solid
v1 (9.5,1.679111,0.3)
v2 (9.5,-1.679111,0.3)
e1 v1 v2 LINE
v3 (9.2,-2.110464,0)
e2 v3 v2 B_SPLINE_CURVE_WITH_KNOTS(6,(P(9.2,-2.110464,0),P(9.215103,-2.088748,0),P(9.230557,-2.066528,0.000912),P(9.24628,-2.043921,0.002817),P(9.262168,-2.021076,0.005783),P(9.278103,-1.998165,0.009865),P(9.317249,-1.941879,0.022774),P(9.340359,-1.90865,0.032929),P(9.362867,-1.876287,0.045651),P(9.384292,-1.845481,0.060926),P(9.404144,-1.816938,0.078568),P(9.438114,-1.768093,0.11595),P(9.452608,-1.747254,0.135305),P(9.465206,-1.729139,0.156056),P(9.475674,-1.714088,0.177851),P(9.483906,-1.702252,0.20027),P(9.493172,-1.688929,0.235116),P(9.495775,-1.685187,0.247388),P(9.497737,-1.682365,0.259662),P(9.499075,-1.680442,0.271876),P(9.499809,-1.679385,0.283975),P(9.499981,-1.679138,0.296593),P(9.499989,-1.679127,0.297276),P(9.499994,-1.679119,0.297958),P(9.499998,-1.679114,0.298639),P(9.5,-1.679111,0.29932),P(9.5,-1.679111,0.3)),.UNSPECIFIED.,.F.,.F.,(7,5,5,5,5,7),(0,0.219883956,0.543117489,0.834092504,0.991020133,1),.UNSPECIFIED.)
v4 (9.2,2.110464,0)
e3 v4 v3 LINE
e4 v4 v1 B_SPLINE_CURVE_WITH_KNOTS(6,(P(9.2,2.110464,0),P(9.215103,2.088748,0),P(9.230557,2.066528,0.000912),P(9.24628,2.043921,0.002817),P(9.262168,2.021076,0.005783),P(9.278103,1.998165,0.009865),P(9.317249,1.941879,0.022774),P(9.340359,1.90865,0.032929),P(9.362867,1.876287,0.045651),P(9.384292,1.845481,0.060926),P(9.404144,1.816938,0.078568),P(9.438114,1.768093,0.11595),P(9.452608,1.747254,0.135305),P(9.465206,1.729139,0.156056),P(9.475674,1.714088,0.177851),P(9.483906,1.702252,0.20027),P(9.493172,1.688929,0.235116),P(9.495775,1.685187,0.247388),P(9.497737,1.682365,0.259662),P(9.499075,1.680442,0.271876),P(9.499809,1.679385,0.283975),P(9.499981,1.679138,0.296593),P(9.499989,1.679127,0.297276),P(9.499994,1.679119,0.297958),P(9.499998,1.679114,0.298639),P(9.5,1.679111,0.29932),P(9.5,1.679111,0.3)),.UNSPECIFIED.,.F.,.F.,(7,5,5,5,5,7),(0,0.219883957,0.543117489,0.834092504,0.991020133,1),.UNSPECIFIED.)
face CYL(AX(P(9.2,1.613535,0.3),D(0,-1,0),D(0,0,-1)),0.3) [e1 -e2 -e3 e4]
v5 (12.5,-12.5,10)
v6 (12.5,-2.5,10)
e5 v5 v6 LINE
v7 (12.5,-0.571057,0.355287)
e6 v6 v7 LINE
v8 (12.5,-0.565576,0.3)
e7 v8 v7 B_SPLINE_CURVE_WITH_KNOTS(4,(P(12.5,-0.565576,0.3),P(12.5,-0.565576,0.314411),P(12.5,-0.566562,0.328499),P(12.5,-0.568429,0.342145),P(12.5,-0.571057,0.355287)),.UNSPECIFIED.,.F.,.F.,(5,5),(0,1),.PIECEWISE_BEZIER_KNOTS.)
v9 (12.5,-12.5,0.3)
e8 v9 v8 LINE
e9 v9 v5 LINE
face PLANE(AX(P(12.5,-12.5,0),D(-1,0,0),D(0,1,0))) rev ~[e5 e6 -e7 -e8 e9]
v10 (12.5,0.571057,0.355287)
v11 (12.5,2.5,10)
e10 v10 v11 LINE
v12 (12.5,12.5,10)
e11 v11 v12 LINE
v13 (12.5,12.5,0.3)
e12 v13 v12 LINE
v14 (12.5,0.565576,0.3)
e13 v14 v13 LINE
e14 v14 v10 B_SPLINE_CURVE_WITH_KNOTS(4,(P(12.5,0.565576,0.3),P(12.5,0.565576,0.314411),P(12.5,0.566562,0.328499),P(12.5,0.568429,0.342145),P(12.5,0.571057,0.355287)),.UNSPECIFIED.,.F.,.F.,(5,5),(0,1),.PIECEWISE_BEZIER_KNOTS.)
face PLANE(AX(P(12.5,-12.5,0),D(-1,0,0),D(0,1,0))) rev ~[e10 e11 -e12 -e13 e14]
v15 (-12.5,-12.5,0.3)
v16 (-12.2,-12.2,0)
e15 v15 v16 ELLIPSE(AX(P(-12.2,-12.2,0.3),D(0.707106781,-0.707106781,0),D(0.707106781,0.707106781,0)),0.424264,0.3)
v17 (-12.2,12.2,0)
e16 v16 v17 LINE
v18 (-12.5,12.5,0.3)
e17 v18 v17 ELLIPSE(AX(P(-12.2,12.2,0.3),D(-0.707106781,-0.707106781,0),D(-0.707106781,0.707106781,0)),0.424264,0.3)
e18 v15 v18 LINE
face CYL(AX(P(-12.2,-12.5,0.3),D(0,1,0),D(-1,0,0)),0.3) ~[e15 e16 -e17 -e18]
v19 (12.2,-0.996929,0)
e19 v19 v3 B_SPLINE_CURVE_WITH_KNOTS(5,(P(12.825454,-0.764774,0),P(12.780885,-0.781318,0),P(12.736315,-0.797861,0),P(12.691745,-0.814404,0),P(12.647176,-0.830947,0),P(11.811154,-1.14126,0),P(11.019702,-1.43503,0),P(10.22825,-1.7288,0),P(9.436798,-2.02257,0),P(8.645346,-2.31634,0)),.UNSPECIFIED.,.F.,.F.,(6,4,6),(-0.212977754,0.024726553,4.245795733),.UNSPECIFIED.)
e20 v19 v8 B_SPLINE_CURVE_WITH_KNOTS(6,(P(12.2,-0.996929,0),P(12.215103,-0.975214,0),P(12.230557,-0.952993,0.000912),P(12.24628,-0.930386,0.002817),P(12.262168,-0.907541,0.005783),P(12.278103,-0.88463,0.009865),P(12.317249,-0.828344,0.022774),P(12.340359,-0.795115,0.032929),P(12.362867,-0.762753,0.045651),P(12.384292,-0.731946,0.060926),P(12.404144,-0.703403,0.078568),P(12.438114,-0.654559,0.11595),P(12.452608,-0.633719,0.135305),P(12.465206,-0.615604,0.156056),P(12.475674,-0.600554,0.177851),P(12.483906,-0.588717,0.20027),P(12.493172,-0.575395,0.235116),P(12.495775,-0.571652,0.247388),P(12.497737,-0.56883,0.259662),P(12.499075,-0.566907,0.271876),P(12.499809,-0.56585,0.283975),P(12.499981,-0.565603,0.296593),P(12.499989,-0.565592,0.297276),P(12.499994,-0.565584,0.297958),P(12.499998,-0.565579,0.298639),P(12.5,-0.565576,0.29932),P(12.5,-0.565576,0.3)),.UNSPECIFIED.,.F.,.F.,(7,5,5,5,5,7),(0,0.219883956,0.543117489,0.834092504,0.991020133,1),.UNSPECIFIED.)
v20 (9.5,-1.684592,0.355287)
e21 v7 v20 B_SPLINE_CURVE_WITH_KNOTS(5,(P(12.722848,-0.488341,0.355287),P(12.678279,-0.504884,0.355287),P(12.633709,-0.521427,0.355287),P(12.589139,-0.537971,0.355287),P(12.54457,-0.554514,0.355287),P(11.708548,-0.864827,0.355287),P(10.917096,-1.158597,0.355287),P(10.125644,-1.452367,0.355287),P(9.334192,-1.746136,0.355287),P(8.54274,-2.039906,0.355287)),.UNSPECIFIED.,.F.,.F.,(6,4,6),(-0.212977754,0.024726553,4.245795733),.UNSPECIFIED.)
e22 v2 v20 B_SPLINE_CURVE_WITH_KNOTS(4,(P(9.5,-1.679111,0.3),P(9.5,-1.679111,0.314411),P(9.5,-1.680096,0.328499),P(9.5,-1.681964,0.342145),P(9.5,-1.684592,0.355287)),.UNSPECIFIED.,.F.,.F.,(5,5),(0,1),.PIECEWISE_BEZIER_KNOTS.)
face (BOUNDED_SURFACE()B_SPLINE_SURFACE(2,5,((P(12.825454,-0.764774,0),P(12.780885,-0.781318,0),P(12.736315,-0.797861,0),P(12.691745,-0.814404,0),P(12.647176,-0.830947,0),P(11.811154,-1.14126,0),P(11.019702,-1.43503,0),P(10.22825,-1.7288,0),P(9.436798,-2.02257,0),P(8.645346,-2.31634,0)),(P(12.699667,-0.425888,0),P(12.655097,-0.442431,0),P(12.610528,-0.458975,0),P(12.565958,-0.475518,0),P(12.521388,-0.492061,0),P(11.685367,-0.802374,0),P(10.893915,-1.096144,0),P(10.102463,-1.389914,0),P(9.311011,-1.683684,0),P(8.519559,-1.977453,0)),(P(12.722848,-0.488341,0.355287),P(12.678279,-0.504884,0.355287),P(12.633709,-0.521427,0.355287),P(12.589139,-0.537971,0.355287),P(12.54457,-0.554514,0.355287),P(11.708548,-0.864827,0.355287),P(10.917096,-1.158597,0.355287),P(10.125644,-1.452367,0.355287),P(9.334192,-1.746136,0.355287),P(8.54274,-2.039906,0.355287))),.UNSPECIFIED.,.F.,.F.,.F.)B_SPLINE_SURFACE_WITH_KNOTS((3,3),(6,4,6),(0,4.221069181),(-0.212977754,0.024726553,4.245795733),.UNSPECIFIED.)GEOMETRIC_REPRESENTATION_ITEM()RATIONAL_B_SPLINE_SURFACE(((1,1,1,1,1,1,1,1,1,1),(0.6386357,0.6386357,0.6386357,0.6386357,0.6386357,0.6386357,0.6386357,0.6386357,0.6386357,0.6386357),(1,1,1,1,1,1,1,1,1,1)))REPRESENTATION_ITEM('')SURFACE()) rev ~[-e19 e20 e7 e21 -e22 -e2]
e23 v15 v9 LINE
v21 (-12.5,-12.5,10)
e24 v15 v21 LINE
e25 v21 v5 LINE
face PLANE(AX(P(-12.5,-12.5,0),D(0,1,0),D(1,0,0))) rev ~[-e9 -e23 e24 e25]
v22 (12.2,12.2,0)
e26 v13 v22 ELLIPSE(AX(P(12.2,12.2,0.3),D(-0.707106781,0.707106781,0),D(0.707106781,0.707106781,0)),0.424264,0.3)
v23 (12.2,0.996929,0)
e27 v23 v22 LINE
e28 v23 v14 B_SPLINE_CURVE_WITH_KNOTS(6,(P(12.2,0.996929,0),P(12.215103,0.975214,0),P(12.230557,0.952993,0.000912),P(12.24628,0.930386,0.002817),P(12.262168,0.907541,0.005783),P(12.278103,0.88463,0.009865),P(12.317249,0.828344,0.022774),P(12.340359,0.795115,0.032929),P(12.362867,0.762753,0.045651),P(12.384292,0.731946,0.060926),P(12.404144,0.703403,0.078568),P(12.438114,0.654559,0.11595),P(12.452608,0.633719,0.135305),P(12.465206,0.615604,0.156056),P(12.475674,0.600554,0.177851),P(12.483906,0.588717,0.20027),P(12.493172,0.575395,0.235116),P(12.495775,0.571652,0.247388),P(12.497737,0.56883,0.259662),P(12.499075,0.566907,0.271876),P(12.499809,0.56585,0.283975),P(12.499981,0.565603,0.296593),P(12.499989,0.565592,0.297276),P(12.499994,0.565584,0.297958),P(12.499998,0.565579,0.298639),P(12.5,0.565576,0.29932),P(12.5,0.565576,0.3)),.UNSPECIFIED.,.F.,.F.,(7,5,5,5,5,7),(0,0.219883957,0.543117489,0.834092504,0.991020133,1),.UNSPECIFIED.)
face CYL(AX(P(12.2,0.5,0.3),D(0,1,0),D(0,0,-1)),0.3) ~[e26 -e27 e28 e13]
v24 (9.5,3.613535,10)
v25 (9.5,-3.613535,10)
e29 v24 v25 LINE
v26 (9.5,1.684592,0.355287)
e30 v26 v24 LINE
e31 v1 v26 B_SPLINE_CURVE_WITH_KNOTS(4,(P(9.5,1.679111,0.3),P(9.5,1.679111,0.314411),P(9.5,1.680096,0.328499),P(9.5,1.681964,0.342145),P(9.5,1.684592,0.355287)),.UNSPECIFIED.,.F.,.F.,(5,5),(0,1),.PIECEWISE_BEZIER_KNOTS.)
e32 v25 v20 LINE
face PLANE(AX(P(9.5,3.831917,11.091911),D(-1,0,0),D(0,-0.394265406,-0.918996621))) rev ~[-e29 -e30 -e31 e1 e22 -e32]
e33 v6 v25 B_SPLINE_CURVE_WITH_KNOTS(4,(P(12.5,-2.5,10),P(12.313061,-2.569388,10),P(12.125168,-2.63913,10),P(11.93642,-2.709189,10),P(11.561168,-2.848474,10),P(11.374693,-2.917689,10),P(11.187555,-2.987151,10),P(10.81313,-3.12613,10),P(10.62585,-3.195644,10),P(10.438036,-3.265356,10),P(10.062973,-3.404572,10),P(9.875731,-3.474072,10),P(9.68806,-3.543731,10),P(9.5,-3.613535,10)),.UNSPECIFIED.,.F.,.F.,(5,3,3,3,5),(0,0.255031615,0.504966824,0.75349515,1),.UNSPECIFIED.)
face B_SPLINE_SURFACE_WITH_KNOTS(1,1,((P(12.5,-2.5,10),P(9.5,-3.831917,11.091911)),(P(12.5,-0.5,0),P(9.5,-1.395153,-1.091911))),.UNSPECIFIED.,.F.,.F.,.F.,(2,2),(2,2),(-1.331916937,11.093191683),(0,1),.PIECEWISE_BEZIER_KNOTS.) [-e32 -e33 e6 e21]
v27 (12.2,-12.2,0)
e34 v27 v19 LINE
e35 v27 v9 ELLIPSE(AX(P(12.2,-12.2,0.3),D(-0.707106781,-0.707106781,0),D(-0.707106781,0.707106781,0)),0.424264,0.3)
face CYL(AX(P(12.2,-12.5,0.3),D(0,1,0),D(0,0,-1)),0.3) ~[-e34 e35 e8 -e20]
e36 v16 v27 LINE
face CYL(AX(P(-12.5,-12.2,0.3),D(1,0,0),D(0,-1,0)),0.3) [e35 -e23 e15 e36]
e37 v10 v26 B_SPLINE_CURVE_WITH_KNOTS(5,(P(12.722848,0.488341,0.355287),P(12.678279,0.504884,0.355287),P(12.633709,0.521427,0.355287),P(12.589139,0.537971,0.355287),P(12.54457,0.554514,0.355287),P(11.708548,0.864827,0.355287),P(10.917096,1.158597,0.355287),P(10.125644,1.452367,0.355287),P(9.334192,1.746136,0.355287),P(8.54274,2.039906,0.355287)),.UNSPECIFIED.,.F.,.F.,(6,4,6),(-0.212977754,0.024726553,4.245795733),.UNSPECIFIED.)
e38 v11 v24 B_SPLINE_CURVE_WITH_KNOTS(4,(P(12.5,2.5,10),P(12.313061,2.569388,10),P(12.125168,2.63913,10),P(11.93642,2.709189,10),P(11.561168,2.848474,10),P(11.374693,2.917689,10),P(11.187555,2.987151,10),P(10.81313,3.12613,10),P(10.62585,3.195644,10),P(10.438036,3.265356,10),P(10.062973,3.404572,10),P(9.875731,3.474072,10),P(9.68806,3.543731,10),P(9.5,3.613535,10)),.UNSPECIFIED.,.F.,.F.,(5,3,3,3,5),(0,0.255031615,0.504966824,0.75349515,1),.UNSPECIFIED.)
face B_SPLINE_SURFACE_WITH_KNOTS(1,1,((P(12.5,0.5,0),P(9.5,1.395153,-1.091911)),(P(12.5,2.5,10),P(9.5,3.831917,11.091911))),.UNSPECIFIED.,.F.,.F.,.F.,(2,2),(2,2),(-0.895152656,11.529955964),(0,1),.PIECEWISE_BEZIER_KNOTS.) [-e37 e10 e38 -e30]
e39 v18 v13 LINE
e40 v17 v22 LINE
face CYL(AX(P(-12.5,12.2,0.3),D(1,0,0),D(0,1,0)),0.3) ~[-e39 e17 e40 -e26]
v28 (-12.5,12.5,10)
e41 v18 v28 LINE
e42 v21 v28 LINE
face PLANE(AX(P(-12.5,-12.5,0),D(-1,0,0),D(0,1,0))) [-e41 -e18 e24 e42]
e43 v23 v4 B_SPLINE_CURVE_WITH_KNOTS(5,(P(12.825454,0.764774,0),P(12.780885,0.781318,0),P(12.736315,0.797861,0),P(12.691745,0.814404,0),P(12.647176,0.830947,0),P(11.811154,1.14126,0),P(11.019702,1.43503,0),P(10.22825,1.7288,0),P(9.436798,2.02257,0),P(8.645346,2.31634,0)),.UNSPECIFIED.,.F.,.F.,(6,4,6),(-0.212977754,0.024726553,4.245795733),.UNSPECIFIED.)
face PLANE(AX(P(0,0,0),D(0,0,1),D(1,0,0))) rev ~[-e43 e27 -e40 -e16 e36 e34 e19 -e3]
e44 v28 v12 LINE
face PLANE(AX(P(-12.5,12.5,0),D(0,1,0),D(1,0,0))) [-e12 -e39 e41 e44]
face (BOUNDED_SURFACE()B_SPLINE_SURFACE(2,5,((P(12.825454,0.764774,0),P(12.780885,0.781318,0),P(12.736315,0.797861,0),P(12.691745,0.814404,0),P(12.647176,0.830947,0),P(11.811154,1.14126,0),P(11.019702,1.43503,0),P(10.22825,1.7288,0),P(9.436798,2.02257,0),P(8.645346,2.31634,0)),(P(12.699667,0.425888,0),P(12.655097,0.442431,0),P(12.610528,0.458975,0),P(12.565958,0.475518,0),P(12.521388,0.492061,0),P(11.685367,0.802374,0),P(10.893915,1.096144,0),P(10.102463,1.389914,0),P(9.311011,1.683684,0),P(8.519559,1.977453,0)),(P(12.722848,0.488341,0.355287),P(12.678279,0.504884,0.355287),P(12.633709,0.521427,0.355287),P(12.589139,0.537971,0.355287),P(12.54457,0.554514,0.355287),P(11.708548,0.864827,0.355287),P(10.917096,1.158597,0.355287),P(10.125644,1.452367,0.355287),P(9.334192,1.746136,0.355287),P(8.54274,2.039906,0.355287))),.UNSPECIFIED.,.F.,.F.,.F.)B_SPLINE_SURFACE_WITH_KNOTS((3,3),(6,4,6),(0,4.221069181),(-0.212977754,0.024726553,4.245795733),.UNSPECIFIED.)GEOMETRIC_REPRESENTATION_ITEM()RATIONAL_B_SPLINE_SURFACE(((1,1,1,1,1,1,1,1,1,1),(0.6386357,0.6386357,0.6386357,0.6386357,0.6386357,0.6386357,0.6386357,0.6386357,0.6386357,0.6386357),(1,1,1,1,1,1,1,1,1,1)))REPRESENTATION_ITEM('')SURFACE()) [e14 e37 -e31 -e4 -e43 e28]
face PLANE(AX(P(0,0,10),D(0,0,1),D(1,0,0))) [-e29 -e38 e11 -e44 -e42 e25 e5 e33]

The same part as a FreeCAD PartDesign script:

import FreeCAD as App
import Part
import Sketcher
from FreeCAD import Vector
Q = App.Units.Quantity


def edges_at(feature, points):
    """Names of the edges that pass closest to the given points."""
    edges = feature.Shape.Edges
    near = lambda p: min(range(len(edges)), key=lambda i: edges[i].distToShape(Part.Vertex(*p))[0])
    return sorted({f"Edge{near(p) + 1}" for p in points})


def add_polygon(sketch, points):
    """Adds a closed chain of lines whose ends are joined by coincident constraints."""
    first, n = sketch.GeometryCount, len(points)
    for a, b in zip(points, points[1:] + points[:1]):
        sketch.addGeometry(Part.LineSegment(App.Vector(*a, 0), App.Vector(*b, 0)), False)
    for i in range(n):
        sketch.addConstraint(Sketcher.Constraint("Coincident", first + i, 2, first + (i + 1) % n, 1))

doc = App.newDocument("Part")
body = doc.addObject("PartDesign::Body", "Body")

sketch1 = body.newObject("Sketcher::SketchObject", "Sketch")
sketch1.AttachmentSupport = (doc.getObject("XY_Plane"), [""])
sketch1.MapMode = "FlatFace"
add_polygon(sketch1, [(-12.5, 12.5), (-12.5, -12.5), (12.5, -12.5), (12.5, 12.5)])
sketch1.addConstraint([
    Sketcher.Constraint("Vertical", 0),
    Sketcher.Constraint("Horizontal", 1),
    Sketcher.Constraint("Vertical", 2),
    Sketcher.Constraint("Horizontal", 3),
    Sketcher.Constraint("Symmetric", 0, 2, 2, 2, -1, 1),
    Sketcher.Constraint("Equal", 3, 0),
    Sketcher.Constraint("DistanceX", 1, 1, 1, 2, Q("25 mm")),
])
pad1 = body.newObject("PartDesign::Pad", "Pad")
pad1.Profile = sketch1
pad1.Length = 10

sketch2 = body.newObject("Sketcher::SketchObject", "Sketch001")
sketch2.AttachmentSupport = (doc.getObject("YZ_Plane"), [""])
sketch2.MapMode = "FlatFace"
sketch2.AttachmentOffset = App.Placement(Vector(0, 0, 12.5), App.Rotation())
add_polygon(sketch2, [(2.5, 10), (-2.5, 10), (-0.5, 0), (0.5, 0)])
sketch2.addConstraint([
    Sketcher.Constraint("Horizontal", 0),
    Sketcher.Constraint("Horizontal", 2),
    Sketcher.Constraint("Symmetric", 1, 2, 2, 2, -1, 1),
    Sketcher.Constraint("Equal", 1, 3),
    Sketcher.Constraint("DistanceX", 0, 2, 0, 1, Q("5 mm")),
    Sketcher.Constraint("DistanceX", 2, 1, 2, 2, Q("1 mm")),
    Sketcher.Constraint("DistanceY", -1, 1, 0, 2, Q("10 mm")),
])
pocket1 = body.newObject("PartDesign::Pocket", "Pocket")
pocket1.Profile = sketch2
pocket1.Length = 3
pocket1.TaperAngle = 20
doc.recompute()

fillet = body.newObject("PartDesign::Fillet", "Fillet")
fillet.Base = (pocket1, edges_at(pocket1, [
    (-12.5, 0, 0),
    (0, 12.5, 0),
    (12.5, 6.5, 0),
    (11, 1.057, 0),
    (9.5, 0, 0),
    (11, -1.057, 0),
    (12.5, -6.5, 0),
    (0, -12.5, 0),
]))
fillet.Radius = 0.3

doc.recompute()
